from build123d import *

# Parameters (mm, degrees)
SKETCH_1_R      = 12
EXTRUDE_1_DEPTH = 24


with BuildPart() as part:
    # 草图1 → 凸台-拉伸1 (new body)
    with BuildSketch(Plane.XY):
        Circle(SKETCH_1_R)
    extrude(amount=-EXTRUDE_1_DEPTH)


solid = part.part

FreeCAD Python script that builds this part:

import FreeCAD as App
import Part
import Sketcher
Q = App.Units.Quantity

doc = App.newDocument("Part")
body = doc.addObject("PartDesign::Body", "Body")

sketch1 = doc.addObject("Sketcher::SketchObject", "Sketch")
body.addObject(sketch1)
sketch1.AttachmentSupport = (doc.XY_Plane, [""])
sketch1.MapMode = "FlatFace"
sketch1.addGeometry(Part.Circle(App.Vector(0, 0, 0), App.Vector(0, 0, 1), 12), False)
sketch1.addConstraint([
    Sketcher.Constraint("Coincident", 0, 3, -1, 1),
    Sketcher.Constraint("Diameter", 0, Q("24 mm")),
])
pad1 = doc.addObject("PartDesign::Pad", "Pad")
body.addObject(pad1)
pad1.Profile = sketch1
pad1.Length = 24
pad1.Reversed = True

doc.recompute()
